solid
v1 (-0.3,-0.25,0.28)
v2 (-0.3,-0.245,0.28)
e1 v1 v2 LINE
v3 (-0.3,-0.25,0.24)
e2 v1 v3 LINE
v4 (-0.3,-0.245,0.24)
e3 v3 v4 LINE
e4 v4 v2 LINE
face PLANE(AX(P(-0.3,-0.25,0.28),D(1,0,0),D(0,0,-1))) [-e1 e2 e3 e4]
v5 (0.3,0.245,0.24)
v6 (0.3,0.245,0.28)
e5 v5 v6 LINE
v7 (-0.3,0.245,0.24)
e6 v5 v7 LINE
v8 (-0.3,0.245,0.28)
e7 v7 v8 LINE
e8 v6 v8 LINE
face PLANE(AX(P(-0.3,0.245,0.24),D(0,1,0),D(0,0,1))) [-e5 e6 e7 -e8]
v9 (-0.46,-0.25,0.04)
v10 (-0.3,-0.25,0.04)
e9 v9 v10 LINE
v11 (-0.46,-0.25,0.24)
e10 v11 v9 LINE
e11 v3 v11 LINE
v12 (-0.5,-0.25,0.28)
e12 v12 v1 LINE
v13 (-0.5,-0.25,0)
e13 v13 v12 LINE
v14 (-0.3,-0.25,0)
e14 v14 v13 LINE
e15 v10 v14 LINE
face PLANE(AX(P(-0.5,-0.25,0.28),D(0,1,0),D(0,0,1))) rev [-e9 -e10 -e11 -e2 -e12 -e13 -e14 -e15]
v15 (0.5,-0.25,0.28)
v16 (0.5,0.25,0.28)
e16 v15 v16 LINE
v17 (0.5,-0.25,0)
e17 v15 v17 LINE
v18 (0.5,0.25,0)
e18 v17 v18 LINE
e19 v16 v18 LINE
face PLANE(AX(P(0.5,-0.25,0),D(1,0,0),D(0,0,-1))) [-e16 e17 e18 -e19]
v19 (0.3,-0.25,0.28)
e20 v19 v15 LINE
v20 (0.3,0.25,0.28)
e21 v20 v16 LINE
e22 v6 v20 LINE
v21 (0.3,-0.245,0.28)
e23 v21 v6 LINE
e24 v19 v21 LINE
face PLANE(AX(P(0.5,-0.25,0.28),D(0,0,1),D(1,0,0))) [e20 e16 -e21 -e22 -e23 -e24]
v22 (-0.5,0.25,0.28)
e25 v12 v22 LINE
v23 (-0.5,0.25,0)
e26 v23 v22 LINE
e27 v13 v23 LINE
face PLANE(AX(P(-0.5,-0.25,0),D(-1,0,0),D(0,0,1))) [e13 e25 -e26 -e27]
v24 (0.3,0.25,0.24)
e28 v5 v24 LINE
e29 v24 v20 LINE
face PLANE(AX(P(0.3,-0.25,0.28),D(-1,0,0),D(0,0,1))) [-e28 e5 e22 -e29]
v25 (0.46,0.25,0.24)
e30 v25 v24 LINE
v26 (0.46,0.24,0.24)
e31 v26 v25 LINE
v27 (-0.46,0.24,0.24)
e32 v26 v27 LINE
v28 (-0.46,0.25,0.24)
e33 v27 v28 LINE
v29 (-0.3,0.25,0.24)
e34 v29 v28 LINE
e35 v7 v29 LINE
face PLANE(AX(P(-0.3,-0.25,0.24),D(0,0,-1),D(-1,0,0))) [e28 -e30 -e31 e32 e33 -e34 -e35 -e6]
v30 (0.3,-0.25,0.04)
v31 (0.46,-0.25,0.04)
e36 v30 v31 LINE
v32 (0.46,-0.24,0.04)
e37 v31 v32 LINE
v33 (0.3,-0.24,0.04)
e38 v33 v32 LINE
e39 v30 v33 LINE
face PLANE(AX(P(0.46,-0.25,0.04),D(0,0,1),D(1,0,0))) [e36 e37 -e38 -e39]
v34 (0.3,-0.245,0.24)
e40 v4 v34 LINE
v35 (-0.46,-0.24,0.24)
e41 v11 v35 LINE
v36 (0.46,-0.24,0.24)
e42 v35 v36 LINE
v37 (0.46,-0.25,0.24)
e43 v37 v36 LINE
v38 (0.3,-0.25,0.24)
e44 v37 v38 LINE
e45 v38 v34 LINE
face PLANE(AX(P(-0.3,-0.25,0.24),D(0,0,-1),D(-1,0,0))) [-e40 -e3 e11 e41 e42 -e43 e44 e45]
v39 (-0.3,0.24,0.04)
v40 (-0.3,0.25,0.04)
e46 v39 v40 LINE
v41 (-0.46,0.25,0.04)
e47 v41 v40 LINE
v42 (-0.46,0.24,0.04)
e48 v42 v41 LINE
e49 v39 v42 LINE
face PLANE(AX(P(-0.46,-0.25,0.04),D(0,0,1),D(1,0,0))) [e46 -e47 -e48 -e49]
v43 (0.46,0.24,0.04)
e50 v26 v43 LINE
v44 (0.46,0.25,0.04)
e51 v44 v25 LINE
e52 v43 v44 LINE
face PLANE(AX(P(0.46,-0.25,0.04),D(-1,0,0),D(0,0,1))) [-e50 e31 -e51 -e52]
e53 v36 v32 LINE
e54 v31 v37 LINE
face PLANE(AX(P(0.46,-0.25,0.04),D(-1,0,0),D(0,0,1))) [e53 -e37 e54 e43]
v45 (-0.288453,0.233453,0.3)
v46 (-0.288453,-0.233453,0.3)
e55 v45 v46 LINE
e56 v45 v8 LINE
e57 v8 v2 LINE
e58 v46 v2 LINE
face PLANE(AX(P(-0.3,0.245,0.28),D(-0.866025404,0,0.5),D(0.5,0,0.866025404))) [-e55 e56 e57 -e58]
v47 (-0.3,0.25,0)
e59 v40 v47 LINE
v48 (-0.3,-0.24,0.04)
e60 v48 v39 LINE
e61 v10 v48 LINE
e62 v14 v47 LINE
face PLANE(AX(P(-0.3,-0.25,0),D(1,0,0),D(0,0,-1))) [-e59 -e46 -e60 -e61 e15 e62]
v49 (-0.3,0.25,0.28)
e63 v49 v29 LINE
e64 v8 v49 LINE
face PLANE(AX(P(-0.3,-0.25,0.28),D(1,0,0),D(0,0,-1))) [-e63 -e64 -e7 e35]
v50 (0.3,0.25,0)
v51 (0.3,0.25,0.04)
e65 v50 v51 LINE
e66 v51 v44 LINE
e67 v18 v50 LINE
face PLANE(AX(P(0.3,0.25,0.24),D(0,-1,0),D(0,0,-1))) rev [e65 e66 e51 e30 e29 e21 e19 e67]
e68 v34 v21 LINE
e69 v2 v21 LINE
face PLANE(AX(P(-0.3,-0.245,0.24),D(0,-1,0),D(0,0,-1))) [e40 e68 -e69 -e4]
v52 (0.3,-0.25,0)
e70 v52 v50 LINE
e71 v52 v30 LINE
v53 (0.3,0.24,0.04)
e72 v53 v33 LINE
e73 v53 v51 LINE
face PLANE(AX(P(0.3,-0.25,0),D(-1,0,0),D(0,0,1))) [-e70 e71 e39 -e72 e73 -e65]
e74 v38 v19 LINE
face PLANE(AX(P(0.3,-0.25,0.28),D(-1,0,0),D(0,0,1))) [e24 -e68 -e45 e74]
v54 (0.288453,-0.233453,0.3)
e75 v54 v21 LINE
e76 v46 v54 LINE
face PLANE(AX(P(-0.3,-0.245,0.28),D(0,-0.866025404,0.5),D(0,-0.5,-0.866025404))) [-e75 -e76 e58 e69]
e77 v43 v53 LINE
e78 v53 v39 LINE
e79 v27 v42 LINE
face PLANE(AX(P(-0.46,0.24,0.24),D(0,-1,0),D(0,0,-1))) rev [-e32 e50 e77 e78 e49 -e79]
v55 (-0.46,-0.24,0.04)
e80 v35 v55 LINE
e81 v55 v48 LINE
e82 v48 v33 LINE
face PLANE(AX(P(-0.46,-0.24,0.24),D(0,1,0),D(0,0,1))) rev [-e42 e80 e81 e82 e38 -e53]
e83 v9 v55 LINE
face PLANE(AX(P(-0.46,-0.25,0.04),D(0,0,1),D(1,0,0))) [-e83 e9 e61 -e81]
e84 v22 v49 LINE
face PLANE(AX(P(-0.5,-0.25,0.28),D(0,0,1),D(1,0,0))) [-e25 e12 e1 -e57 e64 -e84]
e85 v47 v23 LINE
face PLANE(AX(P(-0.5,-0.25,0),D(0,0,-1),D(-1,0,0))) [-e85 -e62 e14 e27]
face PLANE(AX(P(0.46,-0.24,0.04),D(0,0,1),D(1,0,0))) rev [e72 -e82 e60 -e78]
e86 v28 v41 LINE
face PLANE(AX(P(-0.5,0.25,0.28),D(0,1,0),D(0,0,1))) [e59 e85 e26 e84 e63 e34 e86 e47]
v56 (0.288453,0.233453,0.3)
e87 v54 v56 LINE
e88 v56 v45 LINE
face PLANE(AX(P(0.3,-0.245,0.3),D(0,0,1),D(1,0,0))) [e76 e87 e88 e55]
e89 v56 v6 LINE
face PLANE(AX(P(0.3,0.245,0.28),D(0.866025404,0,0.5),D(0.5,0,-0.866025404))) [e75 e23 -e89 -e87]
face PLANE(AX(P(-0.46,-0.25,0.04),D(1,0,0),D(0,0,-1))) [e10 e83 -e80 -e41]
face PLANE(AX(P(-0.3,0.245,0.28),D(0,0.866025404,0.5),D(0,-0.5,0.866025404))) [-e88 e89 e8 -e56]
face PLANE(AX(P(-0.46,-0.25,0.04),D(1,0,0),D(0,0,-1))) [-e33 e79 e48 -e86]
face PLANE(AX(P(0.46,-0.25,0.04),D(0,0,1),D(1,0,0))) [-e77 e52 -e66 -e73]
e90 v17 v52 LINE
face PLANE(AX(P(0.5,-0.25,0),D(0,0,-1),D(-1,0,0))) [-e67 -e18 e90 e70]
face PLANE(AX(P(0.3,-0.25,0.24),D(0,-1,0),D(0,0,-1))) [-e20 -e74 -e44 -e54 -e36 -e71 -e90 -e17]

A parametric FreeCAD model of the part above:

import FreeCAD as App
import Part
import Sketcher


def add_polygon(sketch, points):
    """Adds a closed chain of lines whose ends are joined by coincident constraints."""
    first, n = sketch.GeometryCount, len(points)
    for a, b in zip(points, points[1:] + points[:1]):
        sketch.addGeometry(Part.LineSegment(App.Vector(*a, 0), App.Vector(*b, 0)), False)
    for i in range(n):
        sketch.addConstraint(Sketcher.Constraint("Coincident", first + i, 2, first + (i + 1) % n, 1))

doc = App.newDocument("Part")
params = doc.addObject("Spreadsheet::Sheet", "Params")
for row, (alias, value) in enumerate([
    ("sketch1_width", "0.92 mm"),
    ("sketch1_height", "0.48 mm"),
    ("pad1_length", "0.2 mm"),
    ("sketch2_width", "0.2 mm"),
    ("sketch2_width2", "0.16 mm"),
    ("sketch2_height", "0.28 mm"),
    ("pad2_length", "0.25 mm"),
    ("pad2_length2", "0.25 mm"),
    ("sketch3_width", "0.6 mm"),
    ("sketch3_height", "0.49 mm"),
    ("pad3_length", "0.02 mm"),
    ("pad3_taper", "-30 deg"),
    ("sketch4_width", "0.6 mm"),
    ("sketch4_height", "0.49 mm"),
    ("pad4_length", "0.04 mm"),
], start=1):
    params.set(f"A{row}", alias)
    params.set(f"B{row}", "=" + value)
    params.setAlias(f"B{row}", alias)

body = doc.addObject("PartDesign::Body", "Body")
body.AllowCompound = True

sketch1 = doc.addObject("Sketcher::SketchObject", "Sketch")
body.addObject(sketch1)
sketch1.AttachmentSupport = (doc.XY_Plane, [""])
sketch1.MapMode = "FlatFace"
sketch1.AttachmentOffset = App.Placement(App.Vector(0, 0, 0.04), App.Rotation())
add_polygon(sketch1, [(-0.46, 0.24), (-0.46, -0.24), (0.46, -0.24), (0.46, 0.24)])
sketch1.addConstraint([
    Sketcher.Constraint("Vertical", 0),
    Sketcher.Constraint("Horizontal", 1),
    Sketcher.Constraint("Vertical", 2),
    Sketcher.Constraint("Horizontal", 3),
    Sketcher.Constraint("Symmetric", 0, 2, 2, 2, -1, 1),
    Sketcher.Constraint("DistanceX", 1, 1, 1, 2, 0.92),
    Sketcher.Constraint("DistanceY", 0, 2, 0, 1, 0.48),
])
sketch1.setExpression("Constraints[9]", "Params.sketch1_width")
sketch1.setExpression("Constraints[10]", "Params.sketch1_height")
pad1 = doc.addObject("PartDesign::Pad", "Pad")
body.addObject(pad1)
pad1.Profile = sketch1
pad1.setExpression("Length", "Params.pad1_length")

sketch2 = doc.addObject("Sketcher::SketchObject", "Sketch001")
body.addObject(sketch2)
sketch2.AttachmentSupport = (doc.XZ_Plane, [""])
sketch2.MapMode = "FlatFace"
add_polygon(sketch2, [(-0.3, 0), (-0.5, 0), (-0.5, 0.28), (-0.3, 0.28), (-0.3, 0.24), (-0.46, 0.24), (-0.46, 0.04), (-0.3, 0.04)])
add_polygon(sketch2, [(0.46, 0.24), (0.3, 0.24), (0.3, 0.28), (0.5, 0.28), (0.5, 0), (0.3, 0), (0.3, 0.04), (0.46, 0.04)])
sketch2.addConstraint([
    Sketcher.Constraint("Horizontal", 0),
    Sketcher.Constraint("Vertical", 1),
    Sketcher.Constraint("Horizontal", 2),
    Sketcher.Constraint("Vertical", 3),
    Sketcher.Constraint("Horizontal", 4),
    Sketcher.Constraint("Vertical", 5),
    Sketcher.Constraint("Horizontal", 6),
    Sketcher.Constraint("Vertical", 7),
    Sketcher.Constraint("Horizontal", 8),
    Sketcher.Constraint("Vertical", 9),
    Sketcher.Constraint("Horizontal", 10),
    Sketcher.Constraint("Vertical", 11),
    Sketcher.Constraint("Horizontal", 12),
    Sketcher.Constraint("Vertical", 13),
    Sketcher.Constraint("Horizontal", 14),
    Sketcher.Constraint("Vertical", 15),
    Sketcher.Constraint("Symmetric", 0, 2, 11, 2, -1, 1),
    Sketcher.Constraint("Symmetric", 3, 2, 8, 2, -2),
    Sketcher.Constraint("Symmetric", 7, 2, 12, 2, -2),
    Sketcher.Constraint("Symmetric", 5, 2, 14, 2, -2),
    Sketcher.Constraint("Horizontal", 2, 2, 9, 2),
    Sketcher.Constraint("Vertical", 3, 2, 6, 2),
    Sketcher.Constraint("Equal", 12, 5),
    Sketcher.Constraint("Equal", 3, 7),
    Sketcher.Constraint("DistanceX", 0, 2, 0, 1, 0.2),
    Sketcher.Constraint("DistanceX", 4, 2, 4, 1, 0.16),
    Sketcher.Constraint("DistanceY", 1, 1, 1, 2, 0.28),
    Sketcher.Constraint("DistanceX", 0, 2, -1, 1, 0.5),
])
sketch2.setExpression("Constraints[40]", "Params.sketch2_width")
sketch2.setExpression("Constraints[41]", "Params.sketch2_width2")
sketch2.setExpression("Constraints[42]", "Params.sketch2_height")
pad2 = doc.addObject("PartDesign::Pad", "Pad001")
body.addObject(pad2)
pad2.Profile = sketch2
pad2.Type = "TwoLengths"
pad2.setExpression("Length", "Params.pad2_length")
pad2.setExpression("Length2", "Params.pad2_length2")
pad2.Reversed = True

sketch3 = doc.addObject("Sketcher::SketchObject", "Sketch002")
body.addObject(sketch3)
sketch3.AttachmentSupport = (doc.XY_Plane, [""])
sketch3.MapMode = "FlatFace"
sketch3.AttachmentOffset = App.Placement(App.Vector(0, 0, 0.28), App.Rotation())
add_polygon(sketch3, [(-0.3, 0.24), (-0.3, -0.24), (0.3, -0.24), (0.3, 0.24)])
sketch3.addConstraint([
    Sketcher.Constraint("Vertical", 0),
    Sketcher.Constraint("Horizontal", 1),
    Sketcher.Constraint("Vertical", 2),
    Sketcher.Constraint("Horizontal", 3),
    Sketcher.Constraint("Symmetric", 0, 2, 2, 2, -1, 1),
    Sketcher.Constraint("DistanceX", 1, 1, 1, 2, 0.6),
    Sketcher.Constraint("DistanceY", 0, 2, 0, 1, 0.49),
])
sketch3.setExpression("Constraints[9]", "Params.sketch3_width")
sketch3.setExpression("Constraints[10]", "Params.sketch3_height")
pad3 = doc.addObject("PartDesign::Pad", "Pad002")
body.addObject(pad3)
pad3.Profile = sketch3
pad3.setExpression("Length", "Params.pad3_length")
pad3.setExpression("TaperAngle", "Params.pad3_taper")

sketch4 = doc.addObject("Sketcher::SketchObject", "Sketch003")
body.addObject(sketch4)
sketch4.AttachmentSupport = (doc.XY_Plane, [""])
sketch4.MapMode = "FlatFace"
sketch4.AttachmentOffset = App.Placement(App.Vector(0, 0, 0.28), App.Rotation())
add_polygon(sketch4, [(-0.3, 0.24), (-0.3, -0.24), (0.3, -0.24), (0.3, 0.24)])
sketch4.addConstraint([
    Sketcher.Constraint("Vertical", 0),
    Sketcher.Constraint("Horizontal", 1),
    Sketcher.Constraint("Vertical", 2),
    Sketcher.Constraint("Horizontal", 3),
    Sketcher.Constraint("Symmetric", 0, 2, 2, 2, -1, 1),
    Sketcher.Constraint("DistanceX", 1, 1, 1, 2, 0.6),
    Sketcher.Constraint("DistanceY", 0, 2, 0, 1, 0.49),
])
sketch4.setExpression("Constraints[9]", "Params.sketch4_width")
sketch4.setExpression("Constraints[10]", "Params.sketch4_height")
pad4 = doc.addObject("PartDesign::Pad", "Pad003")
body.addObject(pad4)
pad4.Profile = sketch4
pad4.setExpression("Length", "Params.pad4_length")
pad4.Reversed = True

doc.recompute()
